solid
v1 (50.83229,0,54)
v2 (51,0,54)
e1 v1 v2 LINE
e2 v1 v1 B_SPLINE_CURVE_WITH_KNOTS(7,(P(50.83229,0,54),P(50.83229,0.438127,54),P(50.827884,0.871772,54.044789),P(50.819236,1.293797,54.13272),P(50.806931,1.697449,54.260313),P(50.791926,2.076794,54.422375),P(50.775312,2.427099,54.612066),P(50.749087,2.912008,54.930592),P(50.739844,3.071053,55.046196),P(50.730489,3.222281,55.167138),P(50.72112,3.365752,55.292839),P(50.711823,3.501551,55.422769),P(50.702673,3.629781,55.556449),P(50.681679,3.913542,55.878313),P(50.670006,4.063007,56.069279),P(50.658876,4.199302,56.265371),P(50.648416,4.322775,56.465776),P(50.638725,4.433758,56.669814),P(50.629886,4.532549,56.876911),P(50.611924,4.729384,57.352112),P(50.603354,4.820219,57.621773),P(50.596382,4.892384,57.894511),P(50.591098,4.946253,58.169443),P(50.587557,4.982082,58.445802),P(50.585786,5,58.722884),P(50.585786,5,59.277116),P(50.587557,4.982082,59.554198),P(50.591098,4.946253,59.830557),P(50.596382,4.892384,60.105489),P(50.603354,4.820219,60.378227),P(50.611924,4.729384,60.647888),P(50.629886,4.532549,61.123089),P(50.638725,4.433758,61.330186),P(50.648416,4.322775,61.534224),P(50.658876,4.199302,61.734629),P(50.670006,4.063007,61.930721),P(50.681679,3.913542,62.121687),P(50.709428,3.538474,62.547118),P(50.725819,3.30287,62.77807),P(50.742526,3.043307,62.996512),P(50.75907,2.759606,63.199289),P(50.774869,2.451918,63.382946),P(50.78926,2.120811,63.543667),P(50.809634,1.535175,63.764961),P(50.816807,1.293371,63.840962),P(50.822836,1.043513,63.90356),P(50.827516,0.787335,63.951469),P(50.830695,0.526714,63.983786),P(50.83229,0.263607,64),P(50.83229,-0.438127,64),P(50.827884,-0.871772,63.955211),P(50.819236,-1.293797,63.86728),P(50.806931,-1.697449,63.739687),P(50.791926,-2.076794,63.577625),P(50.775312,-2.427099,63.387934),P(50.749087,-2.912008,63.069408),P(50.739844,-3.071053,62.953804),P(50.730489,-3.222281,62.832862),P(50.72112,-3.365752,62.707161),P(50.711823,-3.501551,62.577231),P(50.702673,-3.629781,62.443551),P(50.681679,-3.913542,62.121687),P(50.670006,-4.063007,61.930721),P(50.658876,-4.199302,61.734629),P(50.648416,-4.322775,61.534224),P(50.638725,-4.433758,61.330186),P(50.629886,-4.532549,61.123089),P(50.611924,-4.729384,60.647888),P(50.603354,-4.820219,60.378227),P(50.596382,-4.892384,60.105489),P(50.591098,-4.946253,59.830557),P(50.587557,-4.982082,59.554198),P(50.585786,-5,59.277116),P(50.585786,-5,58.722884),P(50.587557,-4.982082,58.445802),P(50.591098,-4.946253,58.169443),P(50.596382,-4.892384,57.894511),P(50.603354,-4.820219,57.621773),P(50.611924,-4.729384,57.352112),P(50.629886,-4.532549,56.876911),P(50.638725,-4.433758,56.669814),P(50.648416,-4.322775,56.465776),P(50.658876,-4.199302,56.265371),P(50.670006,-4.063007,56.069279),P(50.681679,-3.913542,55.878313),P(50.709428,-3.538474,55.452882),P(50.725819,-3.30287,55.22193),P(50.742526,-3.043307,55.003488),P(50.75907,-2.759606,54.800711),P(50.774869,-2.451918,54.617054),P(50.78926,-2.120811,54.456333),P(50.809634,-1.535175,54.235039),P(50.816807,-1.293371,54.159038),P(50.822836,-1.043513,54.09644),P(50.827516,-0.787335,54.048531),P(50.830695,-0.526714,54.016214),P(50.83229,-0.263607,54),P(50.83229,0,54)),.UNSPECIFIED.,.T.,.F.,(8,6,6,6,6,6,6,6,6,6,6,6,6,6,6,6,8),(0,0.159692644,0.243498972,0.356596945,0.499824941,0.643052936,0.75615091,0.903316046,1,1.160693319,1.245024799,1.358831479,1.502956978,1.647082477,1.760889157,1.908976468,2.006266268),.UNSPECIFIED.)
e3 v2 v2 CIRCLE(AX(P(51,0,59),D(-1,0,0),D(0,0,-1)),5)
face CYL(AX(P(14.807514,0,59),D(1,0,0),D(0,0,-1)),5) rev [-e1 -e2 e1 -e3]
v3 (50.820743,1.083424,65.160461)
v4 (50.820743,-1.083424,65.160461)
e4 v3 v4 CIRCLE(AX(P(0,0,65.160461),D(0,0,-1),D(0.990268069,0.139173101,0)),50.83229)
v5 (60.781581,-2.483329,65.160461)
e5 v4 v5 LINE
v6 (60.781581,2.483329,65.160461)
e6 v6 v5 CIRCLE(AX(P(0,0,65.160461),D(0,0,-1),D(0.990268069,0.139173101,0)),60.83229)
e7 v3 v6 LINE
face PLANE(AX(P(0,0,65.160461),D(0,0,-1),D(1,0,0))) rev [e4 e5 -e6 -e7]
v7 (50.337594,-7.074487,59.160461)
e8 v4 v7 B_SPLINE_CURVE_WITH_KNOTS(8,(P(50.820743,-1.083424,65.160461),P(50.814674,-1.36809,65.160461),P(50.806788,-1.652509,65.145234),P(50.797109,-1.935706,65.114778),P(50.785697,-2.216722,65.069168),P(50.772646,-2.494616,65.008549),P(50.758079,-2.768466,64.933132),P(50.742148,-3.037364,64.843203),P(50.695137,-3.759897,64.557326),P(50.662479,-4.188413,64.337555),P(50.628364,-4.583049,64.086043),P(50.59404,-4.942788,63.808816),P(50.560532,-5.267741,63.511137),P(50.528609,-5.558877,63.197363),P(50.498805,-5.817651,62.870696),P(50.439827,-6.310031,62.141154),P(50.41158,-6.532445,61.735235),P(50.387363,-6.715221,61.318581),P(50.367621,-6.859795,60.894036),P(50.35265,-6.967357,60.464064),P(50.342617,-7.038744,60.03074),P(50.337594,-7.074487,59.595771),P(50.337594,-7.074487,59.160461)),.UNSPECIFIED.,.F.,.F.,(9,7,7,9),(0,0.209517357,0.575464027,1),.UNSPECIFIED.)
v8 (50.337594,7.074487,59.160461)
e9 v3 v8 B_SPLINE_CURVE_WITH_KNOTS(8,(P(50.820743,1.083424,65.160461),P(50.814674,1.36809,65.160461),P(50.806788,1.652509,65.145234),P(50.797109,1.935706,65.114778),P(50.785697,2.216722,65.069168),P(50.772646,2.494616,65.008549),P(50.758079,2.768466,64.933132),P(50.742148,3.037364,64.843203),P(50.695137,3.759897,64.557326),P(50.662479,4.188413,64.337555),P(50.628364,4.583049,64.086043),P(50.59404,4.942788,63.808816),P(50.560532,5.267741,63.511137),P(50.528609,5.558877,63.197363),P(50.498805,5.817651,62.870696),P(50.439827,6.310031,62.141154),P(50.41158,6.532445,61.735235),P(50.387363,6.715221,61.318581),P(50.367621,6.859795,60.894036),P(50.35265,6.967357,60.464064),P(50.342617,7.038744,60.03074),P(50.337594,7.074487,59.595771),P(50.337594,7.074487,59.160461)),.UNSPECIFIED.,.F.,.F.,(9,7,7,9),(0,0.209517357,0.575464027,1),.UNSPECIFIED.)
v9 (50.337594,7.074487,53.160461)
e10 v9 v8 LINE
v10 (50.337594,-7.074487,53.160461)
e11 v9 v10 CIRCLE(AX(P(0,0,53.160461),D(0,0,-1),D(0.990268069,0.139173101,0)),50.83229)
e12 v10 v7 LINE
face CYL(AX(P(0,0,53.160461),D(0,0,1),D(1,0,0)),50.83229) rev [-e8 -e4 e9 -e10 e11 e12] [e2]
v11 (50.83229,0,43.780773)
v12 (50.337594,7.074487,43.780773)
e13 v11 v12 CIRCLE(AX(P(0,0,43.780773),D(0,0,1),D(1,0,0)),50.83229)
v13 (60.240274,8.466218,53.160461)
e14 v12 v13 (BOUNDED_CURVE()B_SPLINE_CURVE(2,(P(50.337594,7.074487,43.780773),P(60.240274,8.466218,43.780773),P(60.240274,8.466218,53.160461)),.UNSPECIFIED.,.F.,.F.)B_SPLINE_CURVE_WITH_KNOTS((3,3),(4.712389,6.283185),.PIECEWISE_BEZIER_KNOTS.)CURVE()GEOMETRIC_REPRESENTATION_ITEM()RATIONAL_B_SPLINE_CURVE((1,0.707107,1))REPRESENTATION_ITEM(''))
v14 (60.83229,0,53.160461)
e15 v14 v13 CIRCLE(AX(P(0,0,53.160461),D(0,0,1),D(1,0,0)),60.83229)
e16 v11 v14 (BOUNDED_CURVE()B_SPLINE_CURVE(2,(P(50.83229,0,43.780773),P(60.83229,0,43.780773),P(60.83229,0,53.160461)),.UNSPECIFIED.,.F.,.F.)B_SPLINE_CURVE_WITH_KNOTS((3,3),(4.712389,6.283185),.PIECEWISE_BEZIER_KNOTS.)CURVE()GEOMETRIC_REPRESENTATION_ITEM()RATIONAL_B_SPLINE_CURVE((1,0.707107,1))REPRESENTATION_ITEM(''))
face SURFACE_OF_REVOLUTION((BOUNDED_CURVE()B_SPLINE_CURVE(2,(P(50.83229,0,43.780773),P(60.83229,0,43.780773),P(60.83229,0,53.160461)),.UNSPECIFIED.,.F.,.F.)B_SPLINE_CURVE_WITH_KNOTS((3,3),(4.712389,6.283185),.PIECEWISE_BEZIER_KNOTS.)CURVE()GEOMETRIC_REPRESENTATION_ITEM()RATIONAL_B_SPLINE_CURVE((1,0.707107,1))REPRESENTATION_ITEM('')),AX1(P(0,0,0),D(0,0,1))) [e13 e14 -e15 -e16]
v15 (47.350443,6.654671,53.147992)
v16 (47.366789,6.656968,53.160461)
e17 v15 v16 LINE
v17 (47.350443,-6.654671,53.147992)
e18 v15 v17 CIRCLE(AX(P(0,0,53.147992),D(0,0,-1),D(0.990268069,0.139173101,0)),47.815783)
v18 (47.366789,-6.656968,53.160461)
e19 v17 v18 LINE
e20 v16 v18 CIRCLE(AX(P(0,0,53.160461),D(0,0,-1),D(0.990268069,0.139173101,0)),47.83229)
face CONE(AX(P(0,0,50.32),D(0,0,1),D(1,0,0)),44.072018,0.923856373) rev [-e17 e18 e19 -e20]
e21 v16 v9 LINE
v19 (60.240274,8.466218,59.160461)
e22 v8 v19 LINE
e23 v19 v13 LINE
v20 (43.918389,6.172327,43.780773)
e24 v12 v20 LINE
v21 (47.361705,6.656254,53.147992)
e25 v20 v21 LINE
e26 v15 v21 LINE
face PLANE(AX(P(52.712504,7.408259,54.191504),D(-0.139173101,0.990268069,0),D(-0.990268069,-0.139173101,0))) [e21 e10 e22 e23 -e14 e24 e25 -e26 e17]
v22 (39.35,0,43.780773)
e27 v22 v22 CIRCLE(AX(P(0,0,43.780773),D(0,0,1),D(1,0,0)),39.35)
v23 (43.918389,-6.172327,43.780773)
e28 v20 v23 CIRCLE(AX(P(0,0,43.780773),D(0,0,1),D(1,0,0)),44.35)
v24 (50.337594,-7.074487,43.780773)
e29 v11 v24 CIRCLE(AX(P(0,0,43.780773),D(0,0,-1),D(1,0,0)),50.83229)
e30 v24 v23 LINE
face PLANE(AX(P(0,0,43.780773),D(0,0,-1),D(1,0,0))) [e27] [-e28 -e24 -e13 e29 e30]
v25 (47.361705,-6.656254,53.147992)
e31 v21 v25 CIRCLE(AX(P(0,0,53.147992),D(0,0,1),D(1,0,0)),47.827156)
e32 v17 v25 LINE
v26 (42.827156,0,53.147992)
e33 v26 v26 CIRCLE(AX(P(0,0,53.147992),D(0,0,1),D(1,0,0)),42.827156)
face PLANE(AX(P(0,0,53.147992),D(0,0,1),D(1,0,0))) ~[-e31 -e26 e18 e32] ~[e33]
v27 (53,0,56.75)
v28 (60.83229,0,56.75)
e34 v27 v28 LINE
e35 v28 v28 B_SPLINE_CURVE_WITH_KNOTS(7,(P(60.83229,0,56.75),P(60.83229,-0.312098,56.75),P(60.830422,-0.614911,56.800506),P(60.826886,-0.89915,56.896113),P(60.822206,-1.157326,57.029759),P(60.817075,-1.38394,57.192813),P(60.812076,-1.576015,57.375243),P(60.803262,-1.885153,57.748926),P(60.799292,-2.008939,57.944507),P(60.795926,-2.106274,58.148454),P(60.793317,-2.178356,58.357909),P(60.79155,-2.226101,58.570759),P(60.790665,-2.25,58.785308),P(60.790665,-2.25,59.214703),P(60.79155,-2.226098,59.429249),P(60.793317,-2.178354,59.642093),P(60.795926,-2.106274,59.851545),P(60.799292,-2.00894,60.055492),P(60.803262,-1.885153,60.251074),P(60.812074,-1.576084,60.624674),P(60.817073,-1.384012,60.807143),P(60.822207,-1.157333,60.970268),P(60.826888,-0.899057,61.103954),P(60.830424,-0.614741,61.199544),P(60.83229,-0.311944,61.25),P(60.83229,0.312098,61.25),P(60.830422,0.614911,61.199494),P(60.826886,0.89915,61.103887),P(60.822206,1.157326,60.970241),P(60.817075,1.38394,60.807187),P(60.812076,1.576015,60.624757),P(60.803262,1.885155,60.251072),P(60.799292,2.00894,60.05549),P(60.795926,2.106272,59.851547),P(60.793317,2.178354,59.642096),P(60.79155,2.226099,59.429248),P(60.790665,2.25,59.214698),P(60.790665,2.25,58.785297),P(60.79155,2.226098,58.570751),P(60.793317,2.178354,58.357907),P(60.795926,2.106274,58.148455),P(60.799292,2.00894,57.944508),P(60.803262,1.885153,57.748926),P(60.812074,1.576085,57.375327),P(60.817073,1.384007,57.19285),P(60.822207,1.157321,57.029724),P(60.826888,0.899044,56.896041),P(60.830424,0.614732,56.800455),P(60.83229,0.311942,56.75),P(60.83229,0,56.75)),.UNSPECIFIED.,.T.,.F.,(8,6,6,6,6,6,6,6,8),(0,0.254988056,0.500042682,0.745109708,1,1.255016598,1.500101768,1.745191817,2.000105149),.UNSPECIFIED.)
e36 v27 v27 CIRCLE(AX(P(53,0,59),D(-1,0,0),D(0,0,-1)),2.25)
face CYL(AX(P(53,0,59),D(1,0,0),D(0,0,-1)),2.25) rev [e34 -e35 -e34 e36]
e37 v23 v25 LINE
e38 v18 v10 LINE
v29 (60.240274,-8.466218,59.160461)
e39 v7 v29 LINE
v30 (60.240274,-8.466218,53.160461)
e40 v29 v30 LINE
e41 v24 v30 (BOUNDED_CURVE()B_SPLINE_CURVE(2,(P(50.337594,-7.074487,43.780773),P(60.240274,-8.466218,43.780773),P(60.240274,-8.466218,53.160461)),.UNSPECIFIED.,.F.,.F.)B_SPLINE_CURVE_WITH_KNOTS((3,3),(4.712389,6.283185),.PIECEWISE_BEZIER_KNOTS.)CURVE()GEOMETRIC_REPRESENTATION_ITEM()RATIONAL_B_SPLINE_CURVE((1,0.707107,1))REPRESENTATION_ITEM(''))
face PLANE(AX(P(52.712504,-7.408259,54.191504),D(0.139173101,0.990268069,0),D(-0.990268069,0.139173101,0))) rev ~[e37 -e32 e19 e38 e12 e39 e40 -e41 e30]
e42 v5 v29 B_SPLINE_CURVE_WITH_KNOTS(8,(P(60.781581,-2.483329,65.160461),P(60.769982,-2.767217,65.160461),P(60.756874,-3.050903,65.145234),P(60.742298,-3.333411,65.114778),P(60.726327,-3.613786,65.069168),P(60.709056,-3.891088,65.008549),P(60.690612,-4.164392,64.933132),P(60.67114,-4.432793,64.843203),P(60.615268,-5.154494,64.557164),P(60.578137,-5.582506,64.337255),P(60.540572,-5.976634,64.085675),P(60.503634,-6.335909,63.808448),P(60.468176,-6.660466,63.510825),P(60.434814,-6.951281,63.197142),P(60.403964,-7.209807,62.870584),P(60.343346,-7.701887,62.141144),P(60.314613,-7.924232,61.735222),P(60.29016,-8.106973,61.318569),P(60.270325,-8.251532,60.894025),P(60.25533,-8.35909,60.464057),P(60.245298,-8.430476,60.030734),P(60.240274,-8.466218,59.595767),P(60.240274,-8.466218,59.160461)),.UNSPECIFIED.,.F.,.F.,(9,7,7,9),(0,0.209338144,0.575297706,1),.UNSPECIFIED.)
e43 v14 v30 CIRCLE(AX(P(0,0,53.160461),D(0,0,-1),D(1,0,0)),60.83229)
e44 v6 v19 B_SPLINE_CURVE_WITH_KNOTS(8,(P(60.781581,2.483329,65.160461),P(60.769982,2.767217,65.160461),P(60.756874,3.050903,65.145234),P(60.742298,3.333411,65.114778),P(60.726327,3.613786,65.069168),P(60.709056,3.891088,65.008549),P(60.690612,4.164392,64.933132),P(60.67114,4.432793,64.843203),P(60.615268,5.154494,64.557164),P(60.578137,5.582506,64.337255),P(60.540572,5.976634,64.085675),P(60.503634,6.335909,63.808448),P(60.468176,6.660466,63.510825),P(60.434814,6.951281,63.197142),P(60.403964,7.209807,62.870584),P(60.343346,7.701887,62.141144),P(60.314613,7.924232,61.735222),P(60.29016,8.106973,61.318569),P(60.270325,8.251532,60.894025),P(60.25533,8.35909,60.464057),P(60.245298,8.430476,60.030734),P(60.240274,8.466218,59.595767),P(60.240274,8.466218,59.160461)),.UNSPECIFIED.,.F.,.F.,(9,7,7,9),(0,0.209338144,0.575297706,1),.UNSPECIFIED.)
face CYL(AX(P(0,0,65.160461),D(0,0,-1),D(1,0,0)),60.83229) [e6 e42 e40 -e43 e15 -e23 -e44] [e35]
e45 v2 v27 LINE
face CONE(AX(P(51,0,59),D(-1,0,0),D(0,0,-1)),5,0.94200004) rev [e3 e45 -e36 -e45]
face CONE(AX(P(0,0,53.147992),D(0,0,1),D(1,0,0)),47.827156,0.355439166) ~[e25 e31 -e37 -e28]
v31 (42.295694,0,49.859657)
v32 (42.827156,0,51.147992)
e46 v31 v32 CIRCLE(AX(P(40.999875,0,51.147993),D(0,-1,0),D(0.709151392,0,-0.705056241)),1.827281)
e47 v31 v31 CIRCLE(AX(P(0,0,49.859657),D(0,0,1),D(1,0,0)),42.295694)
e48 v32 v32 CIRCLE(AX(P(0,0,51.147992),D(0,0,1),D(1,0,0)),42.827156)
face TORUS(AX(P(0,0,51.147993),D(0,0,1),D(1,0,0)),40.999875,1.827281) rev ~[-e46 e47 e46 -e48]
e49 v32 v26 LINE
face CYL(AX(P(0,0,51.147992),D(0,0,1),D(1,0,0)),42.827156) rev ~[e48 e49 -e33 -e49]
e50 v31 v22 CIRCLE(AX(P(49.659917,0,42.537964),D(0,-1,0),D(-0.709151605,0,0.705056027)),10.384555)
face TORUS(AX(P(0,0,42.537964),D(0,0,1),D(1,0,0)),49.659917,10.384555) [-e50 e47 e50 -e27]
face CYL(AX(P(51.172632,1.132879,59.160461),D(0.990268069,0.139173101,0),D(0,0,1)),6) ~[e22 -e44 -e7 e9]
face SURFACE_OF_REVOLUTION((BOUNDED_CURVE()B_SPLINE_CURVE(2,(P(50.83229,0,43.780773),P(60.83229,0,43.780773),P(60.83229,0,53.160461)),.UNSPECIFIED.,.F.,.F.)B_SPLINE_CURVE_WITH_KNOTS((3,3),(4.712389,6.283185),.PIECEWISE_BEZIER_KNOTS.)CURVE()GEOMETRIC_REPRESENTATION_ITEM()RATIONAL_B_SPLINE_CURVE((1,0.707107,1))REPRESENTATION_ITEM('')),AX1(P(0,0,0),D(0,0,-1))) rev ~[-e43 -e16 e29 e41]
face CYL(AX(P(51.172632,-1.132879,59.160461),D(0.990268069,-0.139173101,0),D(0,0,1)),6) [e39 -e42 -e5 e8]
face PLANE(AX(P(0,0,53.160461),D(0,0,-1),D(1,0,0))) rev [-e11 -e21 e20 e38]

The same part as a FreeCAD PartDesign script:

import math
import FreeCAD as App
import Part
import Sketcher
from FreeCAD import Vector
Q = App.Units.Quantity


def edges_at(feature, points):
    """Names of the edges that pass closest to the given points."""
    edges = feature.Shape.Edges
    near = lambda p: min(range(len(edges)), key=lambda i: edges[i].distToShape(Part.Vertex(*p))[0])
    return sorted({f"Edge{near(p) + 1}" for p in points})


def add_polygon(sketch, points):
    """Adds a closed chain of lines whose ends are joined by coincident constraints."""
    first, n = sketch.GeometryCount, len(points)
    for a, b in zip(points, points[1:] + points[:1]):
        sketch.addGeometry(Part.LineSegment(App.Vector(*a, 0), App.Vector(*b, 0)), False)
    for i in range(n):
        sketch.addConstraint(Sketcher.Constraint("Coincident", first + i, 2, first + (i + 1) % n, 1))

doc = App.newDocument("Part")
body = doc.addObject("PartDesign::Body", "Body")

sketch1 = doc.addObject("Sketcher::SketchObject", "Sketch")
body.addObject(sketch1)
sketch1.AttachmentSupport = (doc.XZ_Plane, [""])
sketch1.MapMode = "FlatFace"
sketch1.addGeometry([
    Part.ArcOfCircle(Part.Circle(Vector(49.7, 42.5, 0), Vector(0, 0, 1), 10.4), math.radians(135), math.radians(173)),
    Part.LineSegment(Vector(39.4, 43.8, 0), Vector(44.4, 43.8, 0)),
    Part.LineSegment(Vector(44.4, 43.8, 0), Vector(47.8, 53.1, 0)),
    Part.LineSegment(Vector(47.8, 53.1, 0), Vector(42.8, 53.1, 0)),
    Part.LineSegment(Vector(42.8, 53.1, 0), Vector(42.8, 51.1, 0)),
    Part.ArcOfCircle(Part.Circle(Vector(41, 51.1, 0), Vector(0, 0, 1), 1.8), math.radians(-45), math.radians(0)),
], False)
sketch1.addConstraint([
    Sketcher.Constraint("Coincident", 0, 2, 1, 1),
    Sketcher.Constraint("Coincident", 1, 2, 2, 1),
    Sketcher.Constraint("Coincident", 2, 2, 3, 1),
    Sketcher.Constraint("Coincident", 3, 2, 4, 1),
    Sketcher.Constraint("Tangent", 4, 2, 5, 2),
    Sketcher.Constraint("Tangent", 5, 1, 0, 1),
    Sketcher.Constraint("Horizontal", 1),
    Sketcher.Constraint("Horizontal", 3),
    Sketcher.Constraint("Vertical", 4),
    Sketcher.Constraint("Equal", 1, 3),
    Sketcher.Constraint("DistanceX", 1, 1, 1, 2, Q("5 mm")),
    Sketcher.Constraint("DistanceY", 4, 2, 4, 1, Q("2 mm")),
    Sketcher.Constraint("DistanceX", -1, 1, 0, 2, Q("39.35 mm")),
    Sketcher.Constraint("Radius", 5, Q("1.827281 mm")),
    Sketcher.Constraint("Radius", 0, Q("10.384555 mm")),
    Sketcher.Constraint("DistanceY", 0, 3, 5, 3, Q("8.610028 mm")),
    Sketcher.Constraint("DistanceY", 0, 2, 5, 3, Q("7.36722 mm")),
    Sketcher.Constraint("DistanceY", -1, 1, 0, 3, Q("42.537964 mm")),
])
revolution = doc.addObject("PartDesign::Revolution", "Revolution")
body.addObject(revolution)
revolution.Profile = sketch1
revolution.ReferenceAxis = (sketch1, ["V_Axis"])
revolution.Angle = 360

sketch2 = doc.addObject("Sketcher::SketchObject", "Sketch001")
body.addObject(sketch2)
sketch2.AttachmentSupport = (doc.XZ_Plane, [""])
sketch2.MapMode = "FlatFace"
sketch2.addGeometry([
    Part.LineSegment(Vector(44.072018, 50.32, 0), Vector(44.35, 43.780773, 0)),
    Part.LineSegment(Vector(44.35, 43.780773, 0), Vector(50.83229, 43.780773, 0)),
    Part.BSplineCurve([Vector(50.83229, 43.780773, 0), Vector(60.83229, 43.780773, 0), Vector(60.83229, 53.160461, 0)], [3, 3], [4.712389, 6.283185], False, 2, [1, 0.707107, 1], False),
    Part.LineSegment(Vector(60.83229, 53.160461, 0), Vector(60.83229, 65.160461, 0)),
    Part.LineSegment(Vector(60.83229, 65.160461, 0), Vector(50.83229, 65.160461, 0)),
    Part.LineSegment(Vector(50.83229, 65.160461, 0), Vector(50.83229, 53.160461, 0)),
    Part.LineSegment(Vector(50.83229, 53.160461, 0), Vector(47.83229, 53.160461, 0)),
    Part.LineSegment(Vector(47.83229, 53.160461, 0), Vector(44.072018, 50.32, 0)),
], False)
sketch2.addConstraint([
    Sketcher.Constraint("Block", 2),
    Sketcher.Constraint("Coincident", 0, 2, 1, 1),
    Sketcher.Constraint("Coincident", 1, 2, 2, 1),
    Sketcher.Constraint("Coincident", 2, 2, 3, 1),
    Sketcher.Constraint("Coincident", 3, 2, 4, 1),
    Sketcher.Constraint("Coincident", 4, 2, 5, 1),
    Sketcher.Constraint("Coincident", 5, 2, 6, 1),
    Sketcher.Constraint("Coincident", 6, 2, 7, 1),
    Sketcher.Constraint("Coincident", 7, 2, 0, 1),
    Sketcher.Constraint("Horizontal", 1),
    Sketcher.Constraint("Vertical", 3),
    Sketcher.Constraint("Horizontal", 4),
    Sketcher.Constraint("Vertical", 5),
    Sketcher.Constraint("Horizontal", 6),
    Sketcher.Constraint("Vertical", 1, 2, 4, 2),
    Sketcher.Constraint("Equal", 3, 5),
    Sketcher.Constraint("DistanceX", 6, 2, 6, 1, Q("3 mm")),
    Sketcher.Constraint("DistanceY", 3, 1, 3, 2, Q("12 mm")),
    Sketcher.Constraint("DistanceX", -1, 1, 0, 2, Q("44.35 mm")),
    Sketcher.Constraint("DistanceY", -1, 1, 7, 2, Q("50.32 mm")),
    Sketcher.Constraint("Distance", 0, Q("6.545133 mm")),
])
revolution2 = doc.addObject("PartDesign::Revolution", "Revolution001")
body.addObject(revolution2)
revolution2.Profile = sketch2
revolution2.ReferenceAxis = (sketch2, ["V_Axis"])
revolution2.Angle = 8

sketch3 = doc.addObject("Sketcher::SketchObject", "Sketch002")
body.addObject(sketch3)
sketch3.AttachmentSupport = (doc.XZ_Plane, [""])
sketch3.MapMode = "FlatFace"
sketch3.addGeometry([
    Part.LineSegment(Vector(44.072018, 50.32, 0), Vector(44.35, 43.780773, 0)),
    Part.LineSegment(Vector(44.35, 43.780773, 0), Vector(50.83229, 43.780773, 0)),
    Part.BSplineCurve([Vector(50.83229, 43.780773, 0), Vector(60.83229, 43.780773, 0), Vector(60.83229, 53.160461, 0)], [3, 3], [4.712389, 6.283185], False, 2, [1, 0.707107, 1], False),
    Part.LineSegment(Vector(60.83229, 53.160461, 0), Vector(60.83229, 65.160461, 0)),
    Part.LineSegment(Vector(60.83229, 65.160461, 0), Vector(50.83229, 65.160461, 0)),
    Part.LineSegment(Vector(50.83229, 65.160461, 0), Vector(50.83229, 53.160461, 0)),
    Part.LineSegment(Vector(50.83229, 53.160461, 0), Vector(47.83229, 53.160461, 0)),
    Part.LineSegment(Vector(47.83229, 53.160461, 0), Vector(44.072018, 50.32, 0)),
], False)
sketch3.addConstraint([
    Sketcher.Constraint("Block", 2),
    Sketcher.Constraint("Coincident", 0, 2, 1, 1),
    Sketcher.Constraint("Coincident", 1, 2, 2, 1),
    Sketcher.Constraint("Coincident", 2, 2, 3, 1),
    Sketcher.Constraint("Coincident", 3, 2, 4, 1),
    Sketcher.Constraint("Coincident", 4, 2, 5, 1),
    Sketcher.Constraint("Coincident", 5, 2, 6, 1),
    Sketcher.Constraint("Coincident", 6, 2, 7, 1),
    Sketcher.Constraint("Coincident", 7, 2, 0, 1),
    Sketcher.Constraint("Horizontal", 1),
    Sketcher.Constraint("Vertical", 3),
    Sketcher.Constraint("Horizontal", 4),
    Sketcher.Constraint("Vertical", 5),
    Sketcher.Constraint("Horizontal", 6),
    Sketcher.Constraint("Vertical", 1, 2, 4, 2),
    Sketcher.Constraint("Equal", 3, 5),
    Sketcher.Constraint("DistanceX", 6, 2, 6, 1, Q("3 mm")),
    Sketcher.Constraint("DistanceY", 3, 1, 3, 2, Q("12 mm")),
    Sketcher.Constraint("DistanceX", -1, 1, 0, 2, Q("44.35 mm")),
    Sketcher.Constraint("DistanceY", -1, 1, 7, 2, Q("50.32 mm")),
    Sketcher.Constraint("Distance", 0, Q("6.545133 mm")),
])
revolution3 = doc.addObject("PartDesign::Revolution", "Revolution002")
body.addObject(revolution3)
revolution3.Profile = sketch3
revolution3.ReferenceAxis = (sketch3, ["V_Axis"])
revolution3.Angle = 8
revolution3.Reversed = True

sketch4 = doc.addObject("Sketcher::SketchObject", "Sketch003")
body.addObject(sketch4)
sketch4.AttachmentSupport = (doc.XZ_Plane, [""])
sketch4.MapMode = "FlatFace"
add_polygon(sketch4, [(51, 54), (53, 56.8), (93.2, 56.8), (93.2, 59), (14.8, 59), (14.8, 54)])
sketch4.addGeometry(Part.LineSegment(Vector(93.2, 59, 0), Vector(14.8, 59, 0)), True)
sketch4.addConstraint([
    Sketcher.Constraint("Horizontal", 1),
    Sketcher.Constraint("Vertical", 2),
    Sketcher.Constraint("Horizontal", 3),
    Sketcher.Constraint("Vertical", 4),
    Sketcher.Constraint("Horizontal", 5),
    Sketcher.Constraint("Horizontal", 6),
    Sketcher.Constraint("Coincident", 6, 1, 2, 2),
    Sketcher.Constraint("Vertical", 4, 2, 6, 2),
    Sketcher.Constraint("DistanceY", 4, 2, 4, 1, Q("5 mm")),
    Sketcher.Constraint("DistanceX", -1, 1, 0, 2, Q("53 mm")),
    Sketcher.Constraint("DistanceY", -1, 1, 2, 2, Q("59 mm")),
    Sketcher.Constraint("DistanceX", -1, 1, 5, 2, Q("51 mm")),
    Sketcher.Constraint("DistanceY", 2, 1, 2, 2, Q("2.25 mm")),
    Sketcher.Constraint("DistanceX", 3, 2, 3, 1, Q("78.415259 mm")),
    Sketcher.Constraint("DistanceX", 1, 1, 1, 2, Q("40.222773 mm")),
])
groove = doc.addObject("PartDesign::Groove", "Groove")
body.addObject(groove)
groove.Profile = sketch4
groove.ReferenceAxis = (sketch4, ["Axis0"])
groove.Angle = 360
doc.recompute()

fillet = doc.addObject("PartDesign::Fillet", "Fillet")
body.addObject(fillet)
fillet.Base = (groove, edges_at(groove, [(55.289, -7.77, 65.16), (55.289, 7.77, 65.16)]))
fillet.Radius = 6

doc.recompute()
